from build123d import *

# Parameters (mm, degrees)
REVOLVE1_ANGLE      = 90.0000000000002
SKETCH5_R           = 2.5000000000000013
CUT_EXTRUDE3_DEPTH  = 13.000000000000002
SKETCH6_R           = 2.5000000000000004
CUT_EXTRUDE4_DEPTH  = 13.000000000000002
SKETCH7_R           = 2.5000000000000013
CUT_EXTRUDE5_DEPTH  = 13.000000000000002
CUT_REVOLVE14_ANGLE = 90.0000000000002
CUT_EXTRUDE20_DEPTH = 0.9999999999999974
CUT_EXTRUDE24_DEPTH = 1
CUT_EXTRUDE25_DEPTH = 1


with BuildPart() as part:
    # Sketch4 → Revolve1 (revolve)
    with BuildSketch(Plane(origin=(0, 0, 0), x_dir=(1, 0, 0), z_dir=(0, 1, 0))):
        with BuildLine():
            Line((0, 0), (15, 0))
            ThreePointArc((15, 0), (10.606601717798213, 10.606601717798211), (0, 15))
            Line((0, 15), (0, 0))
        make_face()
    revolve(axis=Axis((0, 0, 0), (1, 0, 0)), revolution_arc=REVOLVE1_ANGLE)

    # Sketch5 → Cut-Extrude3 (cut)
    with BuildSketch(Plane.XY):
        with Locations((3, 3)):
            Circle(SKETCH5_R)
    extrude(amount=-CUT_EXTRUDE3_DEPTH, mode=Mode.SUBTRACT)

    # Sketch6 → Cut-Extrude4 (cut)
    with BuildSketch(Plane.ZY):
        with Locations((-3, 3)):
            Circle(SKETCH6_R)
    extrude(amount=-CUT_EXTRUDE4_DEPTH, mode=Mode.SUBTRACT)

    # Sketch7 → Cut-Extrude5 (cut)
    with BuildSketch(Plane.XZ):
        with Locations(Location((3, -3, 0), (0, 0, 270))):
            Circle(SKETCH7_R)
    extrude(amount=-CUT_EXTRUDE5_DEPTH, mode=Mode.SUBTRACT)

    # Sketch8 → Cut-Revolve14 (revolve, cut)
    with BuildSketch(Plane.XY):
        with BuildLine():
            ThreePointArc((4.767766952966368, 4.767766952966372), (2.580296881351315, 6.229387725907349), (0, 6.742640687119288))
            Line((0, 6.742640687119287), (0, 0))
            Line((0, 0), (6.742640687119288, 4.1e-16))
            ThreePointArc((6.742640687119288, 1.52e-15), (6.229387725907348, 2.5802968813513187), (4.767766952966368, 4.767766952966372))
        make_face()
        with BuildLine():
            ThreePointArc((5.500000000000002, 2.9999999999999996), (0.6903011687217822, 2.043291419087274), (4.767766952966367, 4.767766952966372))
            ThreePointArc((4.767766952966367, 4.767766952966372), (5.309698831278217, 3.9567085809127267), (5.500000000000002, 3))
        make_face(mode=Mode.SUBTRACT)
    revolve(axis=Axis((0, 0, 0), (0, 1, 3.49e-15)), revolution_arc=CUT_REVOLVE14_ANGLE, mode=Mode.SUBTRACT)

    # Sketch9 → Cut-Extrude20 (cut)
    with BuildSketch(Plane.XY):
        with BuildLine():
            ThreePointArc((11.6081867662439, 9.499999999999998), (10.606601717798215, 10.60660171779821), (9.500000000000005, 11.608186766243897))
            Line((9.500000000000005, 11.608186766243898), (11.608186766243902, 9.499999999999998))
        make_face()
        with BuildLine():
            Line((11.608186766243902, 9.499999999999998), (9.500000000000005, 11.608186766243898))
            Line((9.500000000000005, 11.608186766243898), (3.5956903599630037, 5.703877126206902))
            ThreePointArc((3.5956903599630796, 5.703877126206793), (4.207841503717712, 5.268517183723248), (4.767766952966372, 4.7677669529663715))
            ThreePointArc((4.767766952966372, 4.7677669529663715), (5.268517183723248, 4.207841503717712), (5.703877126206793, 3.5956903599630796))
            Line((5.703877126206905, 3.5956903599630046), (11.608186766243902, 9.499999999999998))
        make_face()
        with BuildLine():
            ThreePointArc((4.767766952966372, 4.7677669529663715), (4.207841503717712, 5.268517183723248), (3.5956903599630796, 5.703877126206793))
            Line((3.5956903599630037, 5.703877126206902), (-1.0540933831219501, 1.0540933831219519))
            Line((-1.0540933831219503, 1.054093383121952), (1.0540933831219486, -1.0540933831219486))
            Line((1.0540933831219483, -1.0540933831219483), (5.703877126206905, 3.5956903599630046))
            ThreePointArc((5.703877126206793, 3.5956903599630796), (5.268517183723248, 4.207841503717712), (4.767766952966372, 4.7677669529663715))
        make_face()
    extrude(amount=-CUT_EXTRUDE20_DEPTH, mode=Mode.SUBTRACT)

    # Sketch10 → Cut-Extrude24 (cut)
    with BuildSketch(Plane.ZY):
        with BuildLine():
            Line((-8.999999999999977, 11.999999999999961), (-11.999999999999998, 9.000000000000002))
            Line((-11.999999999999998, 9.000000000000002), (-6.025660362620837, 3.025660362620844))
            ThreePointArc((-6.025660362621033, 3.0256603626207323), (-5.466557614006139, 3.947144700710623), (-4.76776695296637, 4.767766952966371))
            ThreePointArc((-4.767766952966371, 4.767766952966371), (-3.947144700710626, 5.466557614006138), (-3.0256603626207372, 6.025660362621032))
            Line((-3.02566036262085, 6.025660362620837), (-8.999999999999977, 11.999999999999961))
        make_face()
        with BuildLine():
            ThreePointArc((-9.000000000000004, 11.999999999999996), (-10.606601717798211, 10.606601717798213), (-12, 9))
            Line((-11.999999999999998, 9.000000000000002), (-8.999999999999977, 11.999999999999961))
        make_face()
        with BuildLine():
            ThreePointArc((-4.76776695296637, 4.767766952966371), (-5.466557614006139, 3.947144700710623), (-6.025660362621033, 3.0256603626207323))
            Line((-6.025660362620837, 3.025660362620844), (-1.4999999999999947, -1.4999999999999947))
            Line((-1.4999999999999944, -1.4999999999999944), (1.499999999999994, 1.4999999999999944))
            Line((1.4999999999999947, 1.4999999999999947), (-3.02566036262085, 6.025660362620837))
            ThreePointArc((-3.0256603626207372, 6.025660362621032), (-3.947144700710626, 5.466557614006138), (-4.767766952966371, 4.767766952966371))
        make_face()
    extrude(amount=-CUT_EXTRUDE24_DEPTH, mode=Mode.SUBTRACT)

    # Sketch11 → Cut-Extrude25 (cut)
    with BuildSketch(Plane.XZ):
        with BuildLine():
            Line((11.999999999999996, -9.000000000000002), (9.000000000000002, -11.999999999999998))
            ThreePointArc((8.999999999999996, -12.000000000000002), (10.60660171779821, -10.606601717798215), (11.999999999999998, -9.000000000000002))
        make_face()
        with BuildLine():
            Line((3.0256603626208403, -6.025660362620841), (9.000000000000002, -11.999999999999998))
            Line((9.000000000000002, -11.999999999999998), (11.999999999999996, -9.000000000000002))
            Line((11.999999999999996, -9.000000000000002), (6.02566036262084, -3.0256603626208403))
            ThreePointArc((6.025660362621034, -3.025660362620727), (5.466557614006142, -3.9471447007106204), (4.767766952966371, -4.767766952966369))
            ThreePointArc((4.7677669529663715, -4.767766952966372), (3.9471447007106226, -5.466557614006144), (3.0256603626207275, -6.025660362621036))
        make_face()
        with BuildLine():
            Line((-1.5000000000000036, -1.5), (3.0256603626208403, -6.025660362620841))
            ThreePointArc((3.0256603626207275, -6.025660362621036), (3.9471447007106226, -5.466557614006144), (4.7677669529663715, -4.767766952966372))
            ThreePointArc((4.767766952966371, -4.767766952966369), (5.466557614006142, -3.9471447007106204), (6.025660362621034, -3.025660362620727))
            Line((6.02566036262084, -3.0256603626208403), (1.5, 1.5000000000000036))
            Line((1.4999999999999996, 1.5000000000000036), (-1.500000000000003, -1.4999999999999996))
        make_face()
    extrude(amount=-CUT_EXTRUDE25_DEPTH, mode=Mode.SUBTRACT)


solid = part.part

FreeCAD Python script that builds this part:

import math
import FreeCAD as App
import Part
import Sketcher

V = App.Vector
Q = App.Units.Quantity

doc = App.newDocument("Part")
body = doc.addObject("PartDesign::Body", "Body")

# Sketch on XZ plane
sketch1 = doc.addObject("Sketcher::SketchObject", "Sketch")
body.addObject(sketch1)
sketch1.AttachmentSupport = (doc.XZ_Plane, [""])
sketch1.MapMode = "FlatFace"
sketch1.addGeometry([
    Part.LineSegment(V(0, 0, 0), V(15, 0, 0)),
    Part.ArcOfCircle(Part.Circle(V(0, 0, 0), V(0, 0, 1), 15), math.radians(-90), math.radians(0)),
    Part.LineSegment(V(0, -15, 0), V(0, 0, 0)),
], False)
sketch1.addConstraint([
    Sketcher.Constraint("Coincident", 0, 2, 1, 2),
    Sketcher.Constraint("Coincident", 1, 1, 2, 1),
    Sketcher.Constraint("Coincident", 2, 2, 0, 1),
    Sketcher.Constraint("Horizontal", 0),
    Sketcher.Constraint("Vertical", 2),
    Sketcher.Constraint("Coincident", 1, 3, -1, 1),
    Sketcher.Constraint("Coincident", 2, 2, -1, 1),
    Sketcher.Constraint("Radius", 1, Q("15 mm")),
])
revolution = doc.addObject("PartDesign::Revolution", "Revolution")
body.addObject(revolution)
revolution.Profile = sketch1
revolution.ReferenceAxis = (sketch1, ["H_Axis"])
revolution.Angle = 90

# Sketch on XY plane
sketch2 = doc.addObject("Sketcher::SketchObject", "Sketch001")
body.addObject(sketch2)
sketch2.AttachmentSupport = (doc.XY_Plane, [""])
sketch2.MapMode = "FlatFace"
sketch2.addGeometry(Part.Circle(V(3, 3, 0), V(0, 0, 1), 2.5), False)
sketch2.addConstraint([
    Sketcher.Constraint("Diameter", 0, Q("5 mm")),
    Sketcher.Constraint("DistanceX", -1, 1, 0, 3, Q("3 mm")),
    Sketcher.Constraint("DistanceY", -1, 1, 0, 3, Q("3 mm")),
])
pocket1 = doc.addObject("PartDesign::Pocket", "Pocket")
body.addObject(pocket1)
pocket1.Profile = sketch2
pocket1.Length = 13

# Sketch on YZ plane
sketch3 = doc.addObject("Sketcher::SketchObject", "Sketch002")
body.addObject(sketch3)
sketch3.AttachmentSupport = (doc.YZ_Plane, [""])
sketch3.MapMode = "FlatFace"
sketch3.addGeometry(Part.Circle(V(3, -3, 0), V(0, 0, 1), 2.5), False)
sketch3.addConstraint([
    Sketcher.Constraint("Diameter", 0, Q("5 mm")),
    Sketcher.Constraint("DistanceX", -1, 1, 0, 3, Q("3 mm")),
    Sketcher.Constraint("DistanceY", 0, 3, -1, 1, Q("3 mm")),
])
pocket2 = doc.addObject("PartDesign::Pocket", "Pocket001")
body.addObject(pocket2)
pocket2.Profile = sketch3
pocket2.Length = 13
pocket2.Reversed = True

# Sketch on XZ plane
sketch4 = doc.addObject("Sketcher::SketchObject", "Sketch003")
body.addObject(sketch4)
sketch4.AttachmentSupport = (doc.XZ_Plane, [""])
sketch4.MapMode = "FlatFace"
sketch4.addGeometry(Part.Circle(V(3, -3, 0), V(0, 0, 1), 2.5), False)
sketch4.addConstraint([
    Sketcher.Constraint("Diameter", 0, Q("5 mm")),
    Sketcher.Constraint("DistanceX", -1, 1, 0, 3, Q("3 mm")),
    Sketcher.Constraint("DistanceY", 0, 3, -1, 1, Q("3 mm")),
])
pocket3 = doc.addObject("PartDesign::Pocket", "Pocket002")
body.addObject(pocket3)
pocket3.Profile = sketch4
pocket3.Length = 13

# Sketch on XY plane
sketch5 = doc.addObject("Sketcher::SketchObject", "Sketch004")
body.addObject(sketch5)
sketch5.AttachmentSupport = (doc.XY_Plane, [""])
sketch5.MapMode = "FlatFace"
sketch5.addGeometry([
    Part.ArcOfCircle(Part.Circle(V(0, 0, 0), V(0, 0, 1), 6.7), math.radians(45), math.radians(90)),  # 0
    Part.LineSegment(V(0, 6.7, 0), V(0, 0, 0)),  # 1
    Part.LineSegment(V(0, 0, 0), V(6.7, 0, 0)),  # 2
    Part.ArcOfCircle(Part.Circle(V(0, 0, 0), V(0, 0, 1), 6.7), math.radians(0), math.radians(45)),  # 3
    Part.Circle(V(3, 3, 0), V(0, 0, 1), 2.5),  # 4
], False)
sketch5.addConstraint([
    Sketcher.Constraint("Coincident", 0, 2, 1, 1),
    Sketcher.Constraint("Coincident", 1, 2, 2, 1),
    Sketcher.Constraint("Coincident", 2, 2, 3, 1),
    Sketcher.Constraint("Tangent", 3, 2, 0, 1),
    Sketcher.Constraint("Vertical", 1),
    Sketcher.Constraint("Horizontal", 2),
    Sketcher.Constraint("Coincident", 0, 3, -1, 1),
    Sketcher.Constraint("Coincident", 1, 2, -1, 1),
    Sketcher.Constraint("Equal", 0, 3),
    Sketcher.Constraint("Diameter", 4, Q("5 mm")),
    Sketcher.Constraint("DistanceX", -1, 1, 4, 3, Q("3 mm")),
    Sketcher.Constraint("DistanceY", -1, 1, 4, 3, Q("3 mm")),
    Sketcher.Constraint("Radius", 0, Q("6.742641 mm")),
    Sketcher.Constraint("DistanceX", -1, 1, 3, 2, Q("4.767767 mm")),
])
groove = doc.addObject("PartDesign::Groove", "Groove")
body.addObject(groove)
groove.Profile = sketch5
groove.ReferenceAxis = (sketch5, ["V_Axis"])
groove.Angle = 90

# Sketch on XY plane
sketch6 = doc.addObject("Sketcher::SketchObject", "Sketch005")
body.addObject(sketch6)
sketch6.AttachmentSupport = (doc.XY_Plane, [""])
sketch6.MapMode = "FlatFace"
sketch6.addGeometry([
    Part.ArcOfCircle(Part.Circle(V(0, 0, 0), V(0, 0, 1), 15), math.radians(39.3), math.radians(50.7)),
    Part.LineSegment(V(9.5, 11.6, 0), V(-1.1, 1.1, 0)),
    Part.LineSegment(V(-1.1, 1.1, 0), V(1.1, -1.1, 0)),
    Part.LineSegment(V(1.1, -1.1, 0), V(11.6, 9.5, 0)),
], False)
sketch6.addConstraint([
    Sketcher.Constraint("Coincident", 0, 2, 1, 1),
    Sketcher.Constraint("Coincident", 1, 2, 2, 1),
    Sketcher.Constraint("Coincident", 2, 2, 3, 1),
    Sketcher.Constraint("Coincident", 3, 2, 0, 1),
    Sketcher.Constraint("Coincident", 0, 3, -1, 1),
    Sketcher.Constraint("Symmetric", 1, 2, 2, 2, -1, 1),
    Sketcher.Constraint("Perpendicular", 1, 2),
    Sketcher.Constraint("Perpendicular", 2, 3),
    Sketcher.Constraint("Radius", 0, Q("15 mm")),
    Sketcher.Constraint("Angle", 1, Q("-135 deg")),
    Sketcher.Constraint("DistanceX", -1, 1, 0, 2, Q("9.5 mm")),
])
pocket4 = doc.addObject("PartDesign::Pocket", "Pocket003")
body.addObject(pocket4)
pocket4.Profile = sketch6
pocket4.Length = 1

# Sketch on YZ plane
sketch7 = doc.addObject("Sketcher::SketchObject", "Sketch006")
body.addObject(sketch7)
sketch7.AttachmentSupport = (doc.YZ_Plane, [""])
sketch7.MapMode = "FlatFace"
sketch7.addGeometry([
    Part.LineSegment(V(9, -12, 0), V(-1.5, -1.5, 0)),
    Part.LineSegment(V(-1.5, -1.5, 0), V(1.5, 1.5, 0)),
    Part.LineSegment(V(1.5, 1.5, 0), V(12, -9, 0)),
    Part.ArcOfCircle(Part.Circle(V(0, 0, 0), V(0, 0, 1), 15), math.radians(-53.130102), math.radians(-36.869898)),
], False)
sketch7.addConstraint([
    Sketcher.Constraint("Coincident", 0, 2, 1, 1),
    Sketcher.Constraint("Coincident", 1, 2, 2, 1),
    Sketcher.Constraint("Coincident", 2, 2, 3, 2),
    Sketcher.Constraint("Coincident", 3, 1, 0, 1),
    Sketcher.Constraint("Coincident", 3, 3, -1, 1),
    Sketcher.Constraint("Symmetric", 0, 2, 1, 2, -1, 1),
    Sketcher.Constraint("Perpendicular", 0, 1),
    Sketcher.Constraint("Perpendicular", 1, 2),
    Sketcher.Constraint("Radius", 3, Q("15 mm")),
    Sketcher.Constraint("Angle", 0, Q("135 deg")),
    Sketcher.Constraint("DistanceX", -1, 1, 2, 2, Q("12 mm")),
])
pocket5 = doc.addObject("PartDesign::Pocket", "Pocket004")
body.addObject(pocket5)
pocket5.Profile = sketch7
pocket5.Length = 1
pocket5.Reversed = True

# Sketch on XZ plane
sketch8 = doc.addObject("Sketcher::SketchObject", "Sketch007")
body.addObject(sketch8)
sketch8.AttachmentSupport = (doc.XZ_Plane, [""])
sketch8.MapMode = "FlatFace"
sketch8.addGeometry([
    Part.ArcOfCircle(Part.Circle(V(0, 0, 0), V(0, 0, 1), 15), math.radians(-53.130102), math.radians(-36.869898)),
    Part.LineSegment(V(12, -9, 0), V(1.5, 1.5, 0)),
    Part.LineSegment(V(1.5, 1.5, 0), V(-1.5, -1.5, 0)),
    Part.LineSegment(V(-1.5, -1.5, 0), V(9, -12, 0)),
], False)
sketch8.addConstraint([
    Sketcher.Constraint("Coincident", 0, 2, 1, 1),
    Sketcher.Constraint("Coincident", 1, 2, 2, 1),
    Sketcher.Constraint("Coincident", 2, 2, 3, 1),
    Sketcher.Constraint("Coincident", 3, 2, 0, 1),
    Sketcher.Constraint("Coincident", 0, 3, -1, 1),
    Sketcher.Constraint("Symmetric", 1, 2, 2, 2, -1, 1),
    Sketcher.Constraint("Perpendicular", 1, 2),
    Sketcher.Constraint("Perpendicular", 2, 3),
    Sketcher.Constraint("Radius", 0, Q("15 mm")),
    Sketcher.Constraint("Angle", 1, Q("135 deg")),
    Sketcher.Constraint("DistanceX", -1, 1, 0, 2, Q("12 mm")),
])
pocket6 = doc.addObject("PartDesign::Pocket", "Pocket005")
body.addObject(pocket6)
pocket6.Profile = sketch8
pocket6.Length = 1

doc.recompute()
